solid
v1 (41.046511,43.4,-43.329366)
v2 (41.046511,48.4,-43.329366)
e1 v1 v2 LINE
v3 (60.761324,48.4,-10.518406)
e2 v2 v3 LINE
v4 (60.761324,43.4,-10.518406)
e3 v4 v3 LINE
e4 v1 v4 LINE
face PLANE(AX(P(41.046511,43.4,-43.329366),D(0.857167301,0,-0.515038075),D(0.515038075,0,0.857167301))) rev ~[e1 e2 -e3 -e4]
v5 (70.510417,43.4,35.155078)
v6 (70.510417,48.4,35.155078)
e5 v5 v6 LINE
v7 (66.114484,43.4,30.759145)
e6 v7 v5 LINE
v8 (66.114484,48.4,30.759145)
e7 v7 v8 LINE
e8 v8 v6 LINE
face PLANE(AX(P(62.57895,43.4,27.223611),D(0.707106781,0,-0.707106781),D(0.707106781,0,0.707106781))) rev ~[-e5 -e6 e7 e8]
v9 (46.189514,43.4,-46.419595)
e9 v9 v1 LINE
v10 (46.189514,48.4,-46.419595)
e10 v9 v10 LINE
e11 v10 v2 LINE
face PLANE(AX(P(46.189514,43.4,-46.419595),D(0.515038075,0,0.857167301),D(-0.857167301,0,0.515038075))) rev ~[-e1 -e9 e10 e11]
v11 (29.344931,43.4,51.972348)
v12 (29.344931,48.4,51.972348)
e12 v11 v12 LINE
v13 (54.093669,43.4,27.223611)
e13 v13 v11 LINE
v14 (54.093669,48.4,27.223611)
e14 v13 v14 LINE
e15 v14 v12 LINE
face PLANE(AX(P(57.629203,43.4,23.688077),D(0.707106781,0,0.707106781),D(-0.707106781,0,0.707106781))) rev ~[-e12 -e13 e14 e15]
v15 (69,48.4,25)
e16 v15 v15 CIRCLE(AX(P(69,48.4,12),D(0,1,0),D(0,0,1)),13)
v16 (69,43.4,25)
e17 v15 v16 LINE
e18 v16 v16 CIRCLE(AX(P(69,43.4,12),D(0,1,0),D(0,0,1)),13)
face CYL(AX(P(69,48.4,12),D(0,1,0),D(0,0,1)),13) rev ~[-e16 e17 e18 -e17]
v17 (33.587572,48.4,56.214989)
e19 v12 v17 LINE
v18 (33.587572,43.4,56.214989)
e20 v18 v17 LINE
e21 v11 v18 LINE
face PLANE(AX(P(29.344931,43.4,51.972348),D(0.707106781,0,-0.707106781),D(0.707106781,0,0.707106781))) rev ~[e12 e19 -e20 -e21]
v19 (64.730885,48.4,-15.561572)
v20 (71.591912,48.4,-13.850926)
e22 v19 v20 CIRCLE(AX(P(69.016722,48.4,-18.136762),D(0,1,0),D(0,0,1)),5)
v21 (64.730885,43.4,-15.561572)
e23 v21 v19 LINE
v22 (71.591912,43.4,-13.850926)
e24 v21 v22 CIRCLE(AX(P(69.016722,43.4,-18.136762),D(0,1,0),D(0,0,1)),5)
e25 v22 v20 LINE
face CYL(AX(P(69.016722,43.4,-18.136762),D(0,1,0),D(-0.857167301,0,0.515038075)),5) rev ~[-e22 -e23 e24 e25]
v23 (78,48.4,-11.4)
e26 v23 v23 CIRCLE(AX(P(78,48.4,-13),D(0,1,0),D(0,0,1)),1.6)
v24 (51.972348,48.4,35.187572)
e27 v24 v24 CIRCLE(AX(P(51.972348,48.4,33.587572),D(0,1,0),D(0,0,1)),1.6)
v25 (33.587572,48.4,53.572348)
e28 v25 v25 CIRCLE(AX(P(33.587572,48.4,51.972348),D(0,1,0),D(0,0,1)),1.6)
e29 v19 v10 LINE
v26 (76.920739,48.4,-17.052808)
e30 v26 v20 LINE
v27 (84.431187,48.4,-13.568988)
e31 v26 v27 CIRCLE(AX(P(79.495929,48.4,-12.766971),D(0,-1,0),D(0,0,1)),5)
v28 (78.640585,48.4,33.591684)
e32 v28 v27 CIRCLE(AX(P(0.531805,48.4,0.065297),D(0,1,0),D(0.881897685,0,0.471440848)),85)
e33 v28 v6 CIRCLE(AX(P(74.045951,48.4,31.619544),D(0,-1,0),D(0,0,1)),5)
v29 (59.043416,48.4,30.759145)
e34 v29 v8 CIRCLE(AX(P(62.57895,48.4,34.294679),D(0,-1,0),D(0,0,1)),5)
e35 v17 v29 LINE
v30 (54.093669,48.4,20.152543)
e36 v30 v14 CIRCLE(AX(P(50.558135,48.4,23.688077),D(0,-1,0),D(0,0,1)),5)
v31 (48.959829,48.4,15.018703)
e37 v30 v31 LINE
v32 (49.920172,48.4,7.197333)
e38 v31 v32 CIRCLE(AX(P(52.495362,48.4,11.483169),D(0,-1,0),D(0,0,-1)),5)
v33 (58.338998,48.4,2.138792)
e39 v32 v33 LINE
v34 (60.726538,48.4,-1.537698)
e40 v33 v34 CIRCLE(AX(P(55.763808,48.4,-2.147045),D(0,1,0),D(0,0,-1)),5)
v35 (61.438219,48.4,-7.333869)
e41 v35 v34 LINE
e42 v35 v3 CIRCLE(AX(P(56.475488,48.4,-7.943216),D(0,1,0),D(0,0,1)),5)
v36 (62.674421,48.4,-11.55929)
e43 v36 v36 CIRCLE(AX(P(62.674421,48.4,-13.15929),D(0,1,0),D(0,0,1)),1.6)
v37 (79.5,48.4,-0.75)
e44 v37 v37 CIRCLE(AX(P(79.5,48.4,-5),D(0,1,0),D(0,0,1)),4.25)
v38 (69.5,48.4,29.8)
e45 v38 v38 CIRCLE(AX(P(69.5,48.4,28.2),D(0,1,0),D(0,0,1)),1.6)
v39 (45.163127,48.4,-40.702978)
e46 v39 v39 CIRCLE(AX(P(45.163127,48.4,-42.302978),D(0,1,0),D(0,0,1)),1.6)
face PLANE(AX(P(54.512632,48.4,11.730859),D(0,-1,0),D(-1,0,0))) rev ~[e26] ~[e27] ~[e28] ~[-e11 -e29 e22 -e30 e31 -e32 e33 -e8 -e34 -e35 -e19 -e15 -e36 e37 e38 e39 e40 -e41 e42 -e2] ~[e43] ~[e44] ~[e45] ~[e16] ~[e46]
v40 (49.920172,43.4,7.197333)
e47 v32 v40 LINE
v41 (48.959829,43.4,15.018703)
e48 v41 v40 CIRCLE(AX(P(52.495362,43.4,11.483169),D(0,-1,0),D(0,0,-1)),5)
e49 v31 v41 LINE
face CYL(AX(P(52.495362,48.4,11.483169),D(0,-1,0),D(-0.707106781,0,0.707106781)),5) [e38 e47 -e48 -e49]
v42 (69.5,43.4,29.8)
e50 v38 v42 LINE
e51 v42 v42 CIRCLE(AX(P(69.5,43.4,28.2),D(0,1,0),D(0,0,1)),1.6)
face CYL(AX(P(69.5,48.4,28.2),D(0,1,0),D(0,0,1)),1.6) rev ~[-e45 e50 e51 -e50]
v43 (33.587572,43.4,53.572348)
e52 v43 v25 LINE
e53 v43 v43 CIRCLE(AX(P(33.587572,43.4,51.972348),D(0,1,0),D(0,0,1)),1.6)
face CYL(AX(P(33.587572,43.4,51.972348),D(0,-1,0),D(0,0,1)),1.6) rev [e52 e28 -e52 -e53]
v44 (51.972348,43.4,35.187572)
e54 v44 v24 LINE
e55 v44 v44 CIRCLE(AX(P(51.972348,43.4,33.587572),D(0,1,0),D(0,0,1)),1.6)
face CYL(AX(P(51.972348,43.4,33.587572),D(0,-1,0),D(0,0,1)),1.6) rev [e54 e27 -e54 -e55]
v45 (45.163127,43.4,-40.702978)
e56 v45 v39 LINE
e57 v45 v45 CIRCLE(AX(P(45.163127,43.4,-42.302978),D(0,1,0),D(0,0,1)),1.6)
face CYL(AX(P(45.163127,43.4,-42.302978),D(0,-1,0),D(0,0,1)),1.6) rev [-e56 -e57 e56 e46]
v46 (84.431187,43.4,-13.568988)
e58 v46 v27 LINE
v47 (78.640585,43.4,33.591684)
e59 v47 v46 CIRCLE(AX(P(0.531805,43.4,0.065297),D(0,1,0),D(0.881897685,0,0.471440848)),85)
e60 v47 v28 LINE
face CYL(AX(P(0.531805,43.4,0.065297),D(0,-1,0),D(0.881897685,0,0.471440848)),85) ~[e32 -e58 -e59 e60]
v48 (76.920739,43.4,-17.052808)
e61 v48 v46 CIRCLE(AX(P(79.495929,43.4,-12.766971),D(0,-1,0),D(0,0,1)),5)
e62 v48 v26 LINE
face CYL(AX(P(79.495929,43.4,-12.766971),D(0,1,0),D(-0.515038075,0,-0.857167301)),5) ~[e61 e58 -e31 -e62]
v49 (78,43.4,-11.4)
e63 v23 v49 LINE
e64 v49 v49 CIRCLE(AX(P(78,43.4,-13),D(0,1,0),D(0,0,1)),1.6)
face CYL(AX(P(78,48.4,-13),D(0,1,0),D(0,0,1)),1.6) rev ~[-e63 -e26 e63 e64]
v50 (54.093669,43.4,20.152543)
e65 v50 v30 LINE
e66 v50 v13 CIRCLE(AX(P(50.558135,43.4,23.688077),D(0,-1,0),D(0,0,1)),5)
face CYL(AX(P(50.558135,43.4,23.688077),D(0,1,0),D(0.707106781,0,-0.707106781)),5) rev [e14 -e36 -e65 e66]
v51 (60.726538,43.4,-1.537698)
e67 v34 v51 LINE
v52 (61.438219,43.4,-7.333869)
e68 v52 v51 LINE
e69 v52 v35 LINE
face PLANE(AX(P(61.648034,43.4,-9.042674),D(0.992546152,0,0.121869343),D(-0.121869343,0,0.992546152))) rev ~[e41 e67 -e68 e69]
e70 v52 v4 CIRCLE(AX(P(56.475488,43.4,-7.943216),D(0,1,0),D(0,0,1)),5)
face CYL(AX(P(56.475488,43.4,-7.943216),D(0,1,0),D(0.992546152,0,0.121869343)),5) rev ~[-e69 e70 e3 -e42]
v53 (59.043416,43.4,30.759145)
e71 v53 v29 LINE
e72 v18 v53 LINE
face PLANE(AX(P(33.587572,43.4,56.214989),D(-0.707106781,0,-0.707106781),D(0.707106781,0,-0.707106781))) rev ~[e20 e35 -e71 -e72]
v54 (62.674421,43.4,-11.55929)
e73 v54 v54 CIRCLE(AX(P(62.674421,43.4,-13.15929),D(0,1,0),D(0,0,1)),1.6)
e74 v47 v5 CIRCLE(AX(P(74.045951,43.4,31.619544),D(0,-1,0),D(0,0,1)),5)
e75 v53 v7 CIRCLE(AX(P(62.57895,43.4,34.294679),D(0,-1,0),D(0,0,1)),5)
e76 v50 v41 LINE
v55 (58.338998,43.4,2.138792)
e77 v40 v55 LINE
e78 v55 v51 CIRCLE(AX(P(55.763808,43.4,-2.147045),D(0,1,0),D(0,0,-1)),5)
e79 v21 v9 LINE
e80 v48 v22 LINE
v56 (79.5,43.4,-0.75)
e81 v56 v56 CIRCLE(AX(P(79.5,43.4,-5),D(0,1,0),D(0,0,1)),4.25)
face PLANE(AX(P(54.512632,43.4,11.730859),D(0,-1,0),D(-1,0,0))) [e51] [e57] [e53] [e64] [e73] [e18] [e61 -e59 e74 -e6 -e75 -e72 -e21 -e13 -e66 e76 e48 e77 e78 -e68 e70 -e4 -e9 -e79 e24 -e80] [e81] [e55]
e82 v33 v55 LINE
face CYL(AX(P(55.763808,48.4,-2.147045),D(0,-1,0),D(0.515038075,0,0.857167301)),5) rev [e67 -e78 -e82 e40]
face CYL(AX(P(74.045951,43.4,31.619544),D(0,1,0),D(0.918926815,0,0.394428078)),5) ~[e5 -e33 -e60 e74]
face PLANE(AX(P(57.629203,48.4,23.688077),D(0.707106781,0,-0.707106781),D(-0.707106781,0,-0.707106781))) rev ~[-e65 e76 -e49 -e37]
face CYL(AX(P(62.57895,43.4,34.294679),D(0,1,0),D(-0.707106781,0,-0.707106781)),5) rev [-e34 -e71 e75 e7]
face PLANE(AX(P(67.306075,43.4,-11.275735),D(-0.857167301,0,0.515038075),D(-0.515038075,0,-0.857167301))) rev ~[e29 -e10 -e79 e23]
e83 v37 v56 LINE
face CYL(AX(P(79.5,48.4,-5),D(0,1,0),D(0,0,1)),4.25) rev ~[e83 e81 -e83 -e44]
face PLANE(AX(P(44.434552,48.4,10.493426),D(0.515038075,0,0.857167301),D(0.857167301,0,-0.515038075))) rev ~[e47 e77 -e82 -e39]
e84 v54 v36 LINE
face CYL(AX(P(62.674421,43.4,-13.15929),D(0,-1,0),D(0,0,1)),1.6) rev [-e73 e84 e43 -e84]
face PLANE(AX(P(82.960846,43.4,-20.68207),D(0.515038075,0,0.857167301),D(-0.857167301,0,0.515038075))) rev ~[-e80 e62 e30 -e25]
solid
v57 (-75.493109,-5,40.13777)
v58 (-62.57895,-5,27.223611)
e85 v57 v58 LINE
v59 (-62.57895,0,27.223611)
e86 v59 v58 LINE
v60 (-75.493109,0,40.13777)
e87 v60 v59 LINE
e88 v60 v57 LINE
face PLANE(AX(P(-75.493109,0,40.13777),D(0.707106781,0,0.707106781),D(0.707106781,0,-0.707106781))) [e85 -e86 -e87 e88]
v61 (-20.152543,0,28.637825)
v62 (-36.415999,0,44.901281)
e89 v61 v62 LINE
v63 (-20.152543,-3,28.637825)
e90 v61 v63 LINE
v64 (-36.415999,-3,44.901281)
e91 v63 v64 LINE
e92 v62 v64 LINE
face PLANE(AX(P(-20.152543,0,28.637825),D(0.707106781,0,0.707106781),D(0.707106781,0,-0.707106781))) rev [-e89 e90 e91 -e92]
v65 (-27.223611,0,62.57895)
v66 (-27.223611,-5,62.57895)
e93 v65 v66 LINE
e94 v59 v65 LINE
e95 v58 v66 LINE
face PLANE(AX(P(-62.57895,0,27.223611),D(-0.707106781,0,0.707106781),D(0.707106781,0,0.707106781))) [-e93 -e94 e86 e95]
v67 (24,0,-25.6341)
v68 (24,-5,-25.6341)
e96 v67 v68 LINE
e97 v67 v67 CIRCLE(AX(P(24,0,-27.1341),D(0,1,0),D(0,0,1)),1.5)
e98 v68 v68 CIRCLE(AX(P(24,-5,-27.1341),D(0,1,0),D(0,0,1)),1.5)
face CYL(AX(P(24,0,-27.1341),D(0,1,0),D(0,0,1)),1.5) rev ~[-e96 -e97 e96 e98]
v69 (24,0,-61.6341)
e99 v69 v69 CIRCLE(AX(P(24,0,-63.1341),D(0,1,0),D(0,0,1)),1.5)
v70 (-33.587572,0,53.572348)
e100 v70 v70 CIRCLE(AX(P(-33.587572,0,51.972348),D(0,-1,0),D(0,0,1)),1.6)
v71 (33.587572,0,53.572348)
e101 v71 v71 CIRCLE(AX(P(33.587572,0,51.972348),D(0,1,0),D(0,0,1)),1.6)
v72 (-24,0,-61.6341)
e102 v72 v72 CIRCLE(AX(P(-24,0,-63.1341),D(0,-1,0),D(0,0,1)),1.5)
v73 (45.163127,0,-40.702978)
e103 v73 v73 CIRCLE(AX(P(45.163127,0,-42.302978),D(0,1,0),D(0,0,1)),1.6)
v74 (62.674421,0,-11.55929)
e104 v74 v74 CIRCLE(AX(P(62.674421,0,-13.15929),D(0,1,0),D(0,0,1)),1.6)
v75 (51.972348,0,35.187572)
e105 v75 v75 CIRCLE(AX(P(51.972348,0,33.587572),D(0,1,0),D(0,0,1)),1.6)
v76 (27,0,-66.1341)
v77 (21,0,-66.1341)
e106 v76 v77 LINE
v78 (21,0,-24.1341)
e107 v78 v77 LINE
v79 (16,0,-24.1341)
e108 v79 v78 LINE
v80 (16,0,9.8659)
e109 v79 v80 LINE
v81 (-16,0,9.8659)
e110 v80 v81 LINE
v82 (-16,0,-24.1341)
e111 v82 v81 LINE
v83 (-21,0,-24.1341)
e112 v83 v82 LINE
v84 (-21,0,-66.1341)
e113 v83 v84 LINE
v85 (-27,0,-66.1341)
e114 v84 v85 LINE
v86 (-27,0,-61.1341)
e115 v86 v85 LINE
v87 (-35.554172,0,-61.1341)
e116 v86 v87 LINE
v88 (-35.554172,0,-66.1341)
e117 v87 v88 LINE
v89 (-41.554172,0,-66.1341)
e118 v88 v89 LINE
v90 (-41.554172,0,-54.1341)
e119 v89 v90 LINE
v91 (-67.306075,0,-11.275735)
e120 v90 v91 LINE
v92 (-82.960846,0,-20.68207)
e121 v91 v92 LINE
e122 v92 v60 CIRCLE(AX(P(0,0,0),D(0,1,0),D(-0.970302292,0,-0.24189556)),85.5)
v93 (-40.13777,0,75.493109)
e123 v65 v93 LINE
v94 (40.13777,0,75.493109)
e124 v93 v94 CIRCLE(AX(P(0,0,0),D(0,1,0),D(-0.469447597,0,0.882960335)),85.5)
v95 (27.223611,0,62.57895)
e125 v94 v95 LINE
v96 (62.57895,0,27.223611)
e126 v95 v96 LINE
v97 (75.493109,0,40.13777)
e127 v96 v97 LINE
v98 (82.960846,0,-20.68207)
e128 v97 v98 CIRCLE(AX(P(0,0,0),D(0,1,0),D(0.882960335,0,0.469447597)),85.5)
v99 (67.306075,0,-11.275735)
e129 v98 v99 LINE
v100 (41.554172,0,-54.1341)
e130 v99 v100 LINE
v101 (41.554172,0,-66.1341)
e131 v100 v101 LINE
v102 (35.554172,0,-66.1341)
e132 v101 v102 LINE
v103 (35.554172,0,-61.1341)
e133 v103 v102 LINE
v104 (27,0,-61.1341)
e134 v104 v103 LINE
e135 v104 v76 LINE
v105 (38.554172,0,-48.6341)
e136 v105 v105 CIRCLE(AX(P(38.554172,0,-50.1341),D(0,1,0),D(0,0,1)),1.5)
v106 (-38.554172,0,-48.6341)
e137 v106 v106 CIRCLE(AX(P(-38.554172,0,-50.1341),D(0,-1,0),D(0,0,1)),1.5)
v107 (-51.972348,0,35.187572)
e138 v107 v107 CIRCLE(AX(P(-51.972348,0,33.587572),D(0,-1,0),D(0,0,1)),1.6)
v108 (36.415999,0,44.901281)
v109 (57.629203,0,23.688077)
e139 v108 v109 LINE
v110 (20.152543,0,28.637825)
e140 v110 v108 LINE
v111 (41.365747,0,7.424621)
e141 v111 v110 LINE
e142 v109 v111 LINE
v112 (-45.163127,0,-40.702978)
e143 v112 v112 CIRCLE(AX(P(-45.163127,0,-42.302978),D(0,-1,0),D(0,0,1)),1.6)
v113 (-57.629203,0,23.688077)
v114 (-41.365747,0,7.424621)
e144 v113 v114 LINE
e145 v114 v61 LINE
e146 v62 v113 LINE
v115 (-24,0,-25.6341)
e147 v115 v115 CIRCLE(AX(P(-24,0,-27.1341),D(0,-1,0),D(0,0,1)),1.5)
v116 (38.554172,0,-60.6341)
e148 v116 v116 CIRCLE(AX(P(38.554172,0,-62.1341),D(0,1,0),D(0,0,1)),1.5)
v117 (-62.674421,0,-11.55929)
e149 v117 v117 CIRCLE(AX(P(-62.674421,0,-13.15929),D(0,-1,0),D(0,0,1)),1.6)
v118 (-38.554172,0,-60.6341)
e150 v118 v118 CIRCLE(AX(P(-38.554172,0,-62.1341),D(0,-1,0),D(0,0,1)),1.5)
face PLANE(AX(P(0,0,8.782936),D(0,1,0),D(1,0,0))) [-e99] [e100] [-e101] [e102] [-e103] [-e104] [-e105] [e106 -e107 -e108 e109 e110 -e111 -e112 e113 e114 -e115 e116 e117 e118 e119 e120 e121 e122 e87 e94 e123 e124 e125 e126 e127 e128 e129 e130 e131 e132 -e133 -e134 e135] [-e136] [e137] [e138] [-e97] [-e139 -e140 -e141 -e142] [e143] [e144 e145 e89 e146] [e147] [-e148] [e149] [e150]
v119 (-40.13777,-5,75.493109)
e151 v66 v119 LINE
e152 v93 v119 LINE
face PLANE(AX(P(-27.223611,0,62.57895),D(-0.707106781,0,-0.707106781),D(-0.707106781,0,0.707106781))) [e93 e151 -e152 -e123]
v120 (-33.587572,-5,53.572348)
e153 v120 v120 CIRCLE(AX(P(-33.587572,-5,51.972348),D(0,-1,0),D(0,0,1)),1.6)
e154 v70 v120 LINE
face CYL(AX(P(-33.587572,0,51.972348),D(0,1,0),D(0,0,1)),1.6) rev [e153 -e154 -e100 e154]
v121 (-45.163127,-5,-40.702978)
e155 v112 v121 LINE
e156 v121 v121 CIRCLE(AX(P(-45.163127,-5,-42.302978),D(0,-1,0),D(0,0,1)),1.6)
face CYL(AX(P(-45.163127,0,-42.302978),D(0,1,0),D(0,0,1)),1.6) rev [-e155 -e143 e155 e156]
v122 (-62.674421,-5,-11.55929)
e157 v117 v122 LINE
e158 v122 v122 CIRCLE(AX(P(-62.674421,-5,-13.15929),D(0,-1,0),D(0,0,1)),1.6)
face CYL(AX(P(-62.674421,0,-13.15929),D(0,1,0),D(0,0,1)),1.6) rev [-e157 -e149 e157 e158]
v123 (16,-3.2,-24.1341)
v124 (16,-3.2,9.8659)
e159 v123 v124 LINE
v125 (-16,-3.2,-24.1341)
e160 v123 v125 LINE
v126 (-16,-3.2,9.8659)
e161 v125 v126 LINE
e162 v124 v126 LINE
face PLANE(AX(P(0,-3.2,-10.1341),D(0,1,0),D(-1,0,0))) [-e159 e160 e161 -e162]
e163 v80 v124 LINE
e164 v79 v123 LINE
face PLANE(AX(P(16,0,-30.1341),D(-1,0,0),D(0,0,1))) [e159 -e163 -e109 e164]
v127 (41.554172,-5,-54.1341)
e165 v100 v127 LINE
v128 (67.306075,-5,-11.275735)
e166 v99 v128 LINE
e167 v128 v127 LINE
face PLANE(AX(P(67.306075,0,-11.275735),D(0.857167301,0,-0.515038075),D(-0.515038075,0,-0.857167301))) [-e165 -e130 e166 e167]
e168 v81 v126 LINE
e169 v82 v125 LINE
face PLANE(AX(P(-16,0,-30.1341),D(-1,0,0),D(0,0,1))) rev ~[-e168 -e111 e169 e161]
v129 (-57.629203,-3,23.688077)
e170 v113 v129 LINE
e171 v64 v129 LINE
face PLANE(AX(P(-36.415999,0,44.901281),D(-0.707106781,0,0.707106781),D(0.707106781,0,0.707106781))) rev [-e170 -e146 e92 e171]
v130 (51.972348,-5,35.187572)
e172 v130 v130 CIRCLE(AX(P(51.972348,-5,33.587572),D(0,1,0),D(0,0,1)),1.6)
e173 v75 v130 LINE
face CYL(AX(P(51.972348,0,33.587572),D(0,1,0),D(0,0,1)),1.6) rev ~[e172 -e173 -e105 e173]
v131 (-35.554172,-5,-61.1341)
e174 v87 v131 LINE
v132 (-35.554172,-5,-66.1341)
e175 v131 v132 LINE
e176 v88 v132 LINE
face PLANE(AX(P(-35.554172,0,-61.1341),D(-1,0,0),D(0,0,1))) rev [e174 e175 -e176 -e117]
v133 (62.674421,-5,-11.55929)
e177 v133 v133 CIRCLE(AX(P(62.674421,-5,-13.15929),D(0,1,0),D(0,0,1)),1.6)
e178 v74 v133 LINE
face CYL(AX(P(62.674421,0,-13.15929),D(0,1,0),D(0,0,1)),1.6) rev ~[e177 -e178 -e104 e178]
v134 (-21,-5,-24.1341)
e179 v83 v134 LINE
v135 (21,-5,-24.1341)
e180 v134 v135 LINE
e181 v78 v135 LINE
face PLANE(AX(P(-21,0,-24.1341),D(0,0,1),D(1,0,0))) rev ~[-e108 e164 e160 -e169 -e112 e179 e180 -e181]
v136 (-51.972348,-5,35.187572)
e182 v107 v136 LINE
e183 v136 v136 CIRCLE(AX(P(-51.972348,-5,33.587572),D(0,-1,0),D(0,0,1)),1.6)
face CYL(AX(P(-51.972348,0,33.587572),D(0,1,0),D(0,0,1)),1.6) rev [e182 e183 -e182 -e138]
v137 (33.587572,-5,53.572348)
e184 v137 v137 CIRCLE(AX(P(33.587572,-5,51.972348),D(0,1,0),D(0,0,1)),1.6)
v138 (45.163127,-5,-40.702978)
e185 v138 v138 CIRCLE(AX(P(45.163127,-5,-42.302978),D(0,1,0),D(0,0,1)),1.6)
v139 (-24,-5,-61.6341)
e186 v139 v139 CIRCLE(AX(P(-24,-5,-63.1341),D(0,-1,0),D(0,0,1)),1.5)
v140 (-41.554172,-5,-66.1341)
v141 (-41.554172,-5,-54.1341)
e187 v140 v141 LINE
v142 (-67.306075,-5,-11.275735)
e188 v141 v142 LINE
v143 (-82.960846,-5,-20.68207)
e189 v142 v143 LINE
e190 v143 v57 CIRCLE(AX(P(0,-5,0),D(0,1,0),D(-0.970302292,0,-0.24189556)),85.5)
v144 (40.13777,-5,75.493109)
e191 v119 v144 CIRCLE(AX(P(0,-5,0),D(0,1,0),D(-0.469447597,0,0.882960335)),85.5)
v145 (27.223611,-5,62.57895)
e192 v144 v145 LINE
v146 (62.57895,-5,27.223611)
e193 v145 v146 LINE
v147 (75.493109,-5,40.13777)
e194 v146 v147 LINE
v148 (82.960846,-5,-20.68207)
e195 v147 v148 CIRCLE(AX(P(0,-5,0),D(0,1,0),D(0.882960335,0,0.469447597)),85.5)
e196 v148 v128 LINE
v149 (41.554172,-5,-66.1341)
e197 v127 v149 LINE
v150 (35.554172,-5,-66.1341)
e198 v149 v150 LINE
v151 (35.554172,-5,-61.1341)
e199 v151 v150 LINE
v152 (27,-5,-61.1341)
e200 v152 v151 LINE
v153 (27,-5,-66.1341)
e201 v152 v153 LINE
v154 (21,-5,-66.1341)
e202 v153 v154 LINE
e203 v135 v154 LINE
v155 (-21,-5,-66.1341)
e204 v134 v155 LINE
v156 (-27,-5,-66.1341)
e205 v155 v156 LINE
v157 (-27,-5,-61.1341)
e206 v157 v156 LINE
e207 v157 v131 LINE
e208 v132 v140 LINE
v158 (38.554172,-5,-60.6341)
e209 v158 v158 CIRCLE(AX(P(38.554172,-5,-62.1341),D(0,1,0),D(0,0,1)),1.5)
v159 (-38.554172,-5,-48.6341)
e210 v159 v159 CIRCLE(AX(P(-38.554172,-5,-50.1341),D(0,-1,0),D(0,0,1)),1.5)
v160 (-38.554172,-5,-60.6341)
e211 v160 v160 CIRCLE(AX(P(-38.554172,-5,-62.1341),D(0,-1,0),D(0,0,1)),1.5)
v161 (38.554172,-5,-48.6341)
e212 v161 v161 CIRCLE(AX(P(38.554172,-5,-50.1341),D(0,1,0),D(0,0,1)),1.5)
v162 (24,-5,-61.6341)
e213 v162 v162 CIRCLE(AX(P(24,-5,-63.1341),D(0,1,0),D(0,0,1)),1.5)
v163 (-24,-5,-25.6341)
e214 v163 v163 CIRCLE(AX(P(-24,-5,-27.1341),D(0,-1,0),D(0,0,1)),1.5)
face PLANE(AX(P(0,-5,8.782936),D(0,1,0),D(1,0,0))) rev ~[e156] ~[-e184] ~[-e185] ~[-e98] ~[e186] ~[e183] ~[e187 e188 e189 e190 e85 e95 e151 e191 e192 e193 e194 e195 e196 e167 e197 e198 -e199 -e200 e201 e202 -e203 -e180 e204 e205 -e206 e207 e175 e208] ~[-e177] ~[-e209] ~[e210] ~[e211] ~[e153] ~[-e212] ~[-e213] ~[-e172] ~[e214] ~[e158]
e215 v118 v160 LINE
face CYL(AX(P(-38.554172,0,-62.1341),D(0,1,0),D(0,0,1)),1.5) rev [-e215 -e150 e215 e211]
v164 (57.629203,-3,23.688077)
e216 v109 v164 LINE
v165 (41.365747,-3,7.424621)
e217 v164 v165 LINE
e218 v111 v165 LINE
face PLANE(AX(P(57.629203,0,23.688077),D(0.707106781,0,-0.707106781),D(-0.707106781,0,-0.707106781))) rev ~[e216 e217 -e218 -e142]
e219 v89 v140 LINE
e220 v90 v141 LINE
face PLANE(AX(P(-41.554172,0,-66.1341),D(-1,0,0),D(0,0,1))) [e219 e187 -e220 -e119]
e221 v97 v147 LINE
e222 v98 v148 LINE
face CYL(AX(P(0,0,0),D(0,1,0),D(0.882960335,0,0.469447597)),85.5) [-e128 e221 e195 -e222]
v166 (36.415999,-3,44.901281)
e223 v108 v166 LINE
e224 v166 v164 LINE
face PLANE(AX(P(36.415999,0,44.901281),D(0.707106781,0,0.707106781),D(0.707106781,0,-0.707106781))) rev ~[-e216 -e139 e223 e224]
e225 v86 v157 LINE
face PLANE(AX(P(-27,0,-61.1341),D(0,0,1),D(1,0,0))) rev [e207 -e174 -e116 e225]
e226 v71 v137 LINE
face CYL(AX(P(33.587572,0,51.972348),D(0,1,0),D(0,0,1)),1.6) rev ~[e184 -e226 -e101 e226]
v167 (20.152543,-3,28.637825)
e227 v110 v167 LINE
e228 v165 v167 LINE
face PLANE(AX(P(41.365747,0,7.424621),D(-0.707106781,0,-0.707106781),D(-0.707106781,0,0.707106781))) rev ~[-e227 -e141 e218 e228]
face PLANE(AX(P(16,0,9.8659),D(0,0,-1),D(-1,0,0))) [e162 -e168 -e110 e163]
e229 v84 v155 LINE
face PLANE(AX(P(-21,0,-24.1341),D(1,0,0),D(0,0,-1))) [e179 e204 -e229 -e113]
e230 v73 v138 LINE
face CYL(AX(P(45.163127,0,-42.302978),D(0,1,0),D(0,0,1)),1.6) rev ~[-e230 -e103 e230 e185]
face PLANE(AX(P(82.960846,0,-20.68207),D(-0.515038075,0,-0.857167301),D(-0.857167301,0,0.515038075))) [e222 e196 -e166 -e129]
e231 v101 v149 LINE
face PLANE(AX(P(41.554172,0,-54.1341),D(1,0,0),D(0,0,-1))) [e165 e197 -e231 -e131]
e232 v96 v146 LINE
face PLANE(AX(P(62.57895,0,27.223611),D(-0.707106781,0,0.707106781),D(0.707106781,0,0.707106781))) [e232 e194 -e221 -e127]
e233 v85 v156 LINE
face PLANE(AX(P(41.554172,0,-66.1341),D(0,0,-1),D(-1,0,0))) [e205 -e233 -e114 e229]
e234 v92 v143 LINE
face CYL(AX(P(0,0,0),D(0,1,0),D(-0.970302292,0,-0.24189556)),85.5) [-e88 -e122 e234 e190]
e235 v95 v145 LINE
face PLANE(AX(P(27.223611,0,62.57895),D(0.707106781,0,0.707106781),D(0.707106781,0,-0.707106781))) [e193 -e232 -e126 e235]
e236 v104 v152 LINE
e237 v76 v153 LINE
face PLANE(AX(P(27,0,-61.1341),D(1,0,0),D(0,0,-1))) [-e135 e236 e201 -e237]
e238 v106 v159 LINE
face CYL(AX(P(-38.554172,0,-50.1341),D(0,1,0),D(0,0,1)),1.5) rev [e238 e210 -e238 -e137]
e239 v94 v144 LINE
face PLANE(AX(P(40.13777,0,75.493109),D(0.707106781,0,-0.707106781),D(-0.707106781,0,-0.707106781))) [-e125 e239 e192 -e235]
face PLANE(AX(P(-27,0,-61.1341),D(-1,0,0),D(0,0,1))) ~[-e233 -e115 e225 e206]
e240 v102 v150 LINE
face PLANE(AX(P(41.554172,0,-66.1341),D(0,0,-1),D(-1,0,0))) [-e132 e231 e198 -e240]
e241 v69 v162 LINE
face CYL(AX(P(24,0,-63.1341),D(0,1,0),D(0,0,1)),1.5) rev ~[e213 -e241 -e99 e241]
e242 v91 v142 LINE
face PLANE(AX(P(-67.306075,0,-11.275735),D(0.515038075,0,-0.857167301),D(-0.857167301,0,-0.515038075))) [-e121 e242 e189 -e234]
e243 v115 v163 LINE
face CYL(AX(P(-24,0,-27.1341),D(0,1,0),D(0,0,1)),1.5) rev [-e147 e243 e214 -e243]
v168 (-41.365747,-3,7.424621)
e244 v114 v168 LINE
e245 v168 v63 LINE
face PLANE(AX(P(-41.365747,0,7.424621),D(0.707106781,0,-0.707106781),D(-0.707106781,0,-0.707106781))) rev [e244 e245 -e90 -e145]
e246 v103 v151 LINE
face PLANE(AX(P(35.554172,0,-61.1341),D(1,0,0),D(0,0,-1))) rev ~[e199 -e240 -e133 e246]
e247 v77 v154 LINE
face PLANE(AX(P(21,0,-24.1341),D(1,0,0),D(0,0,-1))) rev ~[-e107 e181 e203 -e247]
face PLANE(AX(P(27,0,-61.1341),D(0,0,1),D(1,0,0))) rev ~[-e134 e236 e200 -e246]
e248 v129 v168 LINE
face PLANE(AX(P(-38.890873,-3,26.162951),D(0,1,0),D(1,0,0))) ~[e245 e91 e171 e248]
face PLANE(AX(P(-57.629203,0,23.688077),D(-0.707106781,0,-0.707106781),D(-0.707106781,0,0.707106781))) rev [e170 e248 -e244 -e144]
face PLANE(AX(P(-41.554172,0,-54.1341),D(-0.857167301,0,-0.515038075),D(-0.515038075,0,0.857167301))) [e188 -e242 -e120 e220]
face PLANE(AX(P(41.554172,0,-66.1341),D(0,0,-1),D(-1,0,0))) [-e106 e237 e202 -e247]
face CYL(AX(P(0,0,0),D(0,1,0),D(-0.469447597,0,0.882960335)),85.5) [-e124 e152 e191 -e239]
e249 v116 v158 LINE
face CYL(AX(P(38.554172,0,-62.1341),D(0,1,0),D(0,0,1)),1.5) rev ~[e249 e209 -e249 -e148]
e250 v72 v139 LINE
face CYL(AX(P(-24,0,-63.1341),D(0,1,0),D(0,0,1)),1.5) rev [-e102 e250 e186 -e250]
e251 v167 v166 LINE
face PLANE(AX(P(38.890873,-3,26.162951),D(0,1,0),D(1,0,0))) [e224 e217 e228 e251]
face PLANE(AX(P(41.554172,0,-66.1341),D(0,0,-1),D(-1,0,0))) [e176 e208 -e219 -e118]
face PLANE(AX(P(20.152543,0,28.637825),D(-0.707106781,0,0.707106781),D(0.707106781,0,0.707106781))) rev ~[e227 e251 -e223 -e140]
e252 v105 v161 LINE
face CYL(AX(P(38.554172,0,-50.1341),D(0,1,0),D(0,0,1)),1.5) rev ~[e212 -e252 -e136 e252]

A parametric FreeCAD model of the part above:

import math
import FreeCAD as App
import Part
import Sketcher

V = App.Vector
Q = App.Units.Quantity


def edges_at(feature, points):
    """Names of the edges that pass closest to the given points."""
    edges = feature.Shape.Edges
    near = lambda p: min(range(len(edges)), key=lambda i: edges[i].distToShape(Part.Vertex(*p))[0])
    return sorted({f"Edge{near(p) + 1}" for p in points})


def add_polygon(sketch, points):
    """Adds a closed chain of lines whose ends are joined by coincident constraints."""
    first, n = sketch.GeometryCount, len(points)
    for a, b in zip(points, points[1:] + points[:1]):
        sketch.addGeometry(Part.LineSegment(App.Vector(*a, 0), App.Vector(*b, 0)), False)
    for i in range(n):
        sketch.addConstraint(Sketcher.Constraint("Coincident", first + i, 2, first + (i + 1) % n, 1))

doc = App.newDocument("Part")
body = doc.addObject("PartDesign::Body", "Body")

sketch1 = body.newObject("Sketcher::SketchObject", "Sketch")
sketch1.AttachmentSupport = (doc.getObject("XZ_Plane"), [""])
sketch1.MapMode = "FlatFace"
sketch1.addGeometry(Part.LineSegment(V(83, -21, 0), V(67, -11, 0)), False)
sketch1.addGeometry(Part.LineSegment(V(67, -11, 0), V(42, -54, 0)), False)
sketch1.addGeometry(Part.LineSegment(V(42, -54, 0), V(42, -66, 0)), False)
sketch1.addGeometry(Part.LineSegment(V(42, -66, 0), V(-42, -66, 0)), False)
sketch1.addGeometry(Part.LineSegment(V(-42, -66, 0), V(-42, -54, 0)), False)
sketch1.addGeometry(Part.LineSegment(V(-42, -54, 0), V(-67, -11, 0)), False)
sketch1.addGeometry(Part.LineSegment(V(-67, -11, 0), V(-83, -21, 0)), False)
sketch1.addGeometry(Part.ArcOfCircle(Part.Circle(V(0, 0, 0), V(0, 0, 1), 86), math.radians(152), math.radians(194)), False)
sketch1.addGeometry(Part.LineSegment(V(-75, 40, 0), V(-63, 27, 0)), False)
sketch1.addGeometry(Part.LineSegment(V(-63, 27, 0), V(-27, 63, 0)), False)
sketch1.addGeometry(Part.LineSegment(V(-27, 63, 0), V(-40, 75, 0)), False)
sketch1.addGeometry(Part.ArcOfCircle(Part.Circle(V(0, 0, 0), V(0, 0, 1), 86), math.radians(62), math.radians(118)), False)
sketch1.addGeometry(Part.LineSegment(V(40, 75, 0), V(27, 63, 0)), False)
sketch1.addGeometry(Part.LineSegment(V(27, 63, 0), V(63, 27, 0)), False)
sketch1.addGeometry(Part.LineSegment(V(63, 27, 0), V(75, 40, 0)), False)
sketch1.addGeometry(Part.ArcOfCircle(Part.Circle(V(0, 0, 0), V(0, 0, 1), 86), math.radians(-14), math.radians(28)), False)
sketch1.addConstraint(Sketcher.Constraint("Coincident", 0, 2, 1, 1))
sketch1.addConstraint(Sketcher.Constraint("Coincident", 1, 2, 2, 1))
sketch1.addConstraint(Sketcher.Constraint("Coincident", 2, 2, 3, 1))
sketch1.addConstraint(Sketcher.Constraint("Coincident", 3, 2, 4, 1))
sketch1.addConstraint(Sketcher.Constraint("Coincident", 4, 2, 5, 1))
sketch1.addConstraint(Sketcher.Constraint("Coincident", 5, 2, 6, 1))
sketch1.addConstraint(Sketcher.Constraint("Coincident", 6, 2, 7, 2))
sketch1.addConstraint(Sketcher.Constraint("Coincident", 7, 1, 8, 1))
sketch1.addConstraint(Sketcher.Constraint("Coincident", 8, 2, 9, 1))
sketch1.addConstraint(Sketcher.Constraint("Coincident", 9, 2, 10, 1))
sketch1.addConstraint(Sketcher.Constraint("Coincident", 10, 2, 11, 2))
sketch1.addConstraint(Sketcher.Constraint("Coincident", 11, 1, 12, 1))
sketch1.addConstraint(Sketcher.Constraint("Coincident", 12, 2, 13, 1))
sketch1.addConstraint(Sketcher.Constraint("Coincident", 13, 2, 14, 1))
sketch1.addConstraint(Sketcher.Constraint("Coincident", 14, 2, 15, 2))
sketch1.addConstraint(Sketcher.Constraint("Coincident", 15, 1, 0, 1))
sketch1.addConstraint(Sketcher.Constraint("Vertical", 2))
sketch1.addConstraint(Sketcher.Constraint("Horizontal", 3))
sketch1.addConstraint(Sketcher.Constraint("Vertical", 4))
sketch1.addConstraint(Sketcher.Constraint("Coincident", 7, 3, -1, 1))
sketch1.addConstraint(Sketcher.Constraint("Coincident", 11, 3, -1, 1))
sketch1.addConstraint(Sketcher.Constraint("Coincident", 15, 3, -1, 1))
sketch1.addConstraint(Sketcher.Constraint("Equal", 7, 11))
sketch1.addConstraint(Sketcher.Constraint("Equal", 11, 15))
sketch1.addConstraint(Sketcher.Constraint("Symmetric", 1, 2, 4, 2, -2))
sketch1.addConstraint(Sketcher.Constraint("Symmetric", 0, 2, 5, 2, -2))
sketch1.addConstraint(Sketcher.Constraint("Symmetric", 9, 2, 12, 2, -2))
sketch1.addConstraint(Sketcher.Constraint("Symmetric", 8, 2, 13, 2, -2))
sketch1.addConstraint(Sketcher.Constraint("Perpendicular", 0, 1))
sketch1.addConstraint(Sketcher.Constraint("Perpendicular", 5, 6))
sketch1.addConstraint(Sketcher.Constraint("Perpendicular", 8, 9))
sketch1.addConstraint(Sketcher.Constraint("Perpendicular", 9, 10))
sketch1.addConstraint(Sketcher.Constraint("Perpendicular", 10, 12))
sketch1.addConstraint(Sketcher.Constraint("Perpendicular", 12, 13))
sketch1.addConstraint(Sketcher.Constraint("Perpendicular", 13, 14))
sketch1.addConstraint(Sketcher.Constraint("Equal", 6, 8))
sketch1.addConstraint(Sketcher.Constraint("Equal", 5, 9))
sketch1.addConstraint(Sketcher.Constraint("Equal", 8, 10))
sketch1.addConstraint(Sketcher.Constraint("Radius", 7, Q("85.5 mm")))
sketch1.addConstraint(Sketcher.Constraint("DistanceY", 2, 2, 2, 1, Q("12 mm")))
sketch1.addConstraint(Sketcher.Constraint("Angle", 0, Q("149 deg")))
sketch1.addConstraint(Sketcher.Constraint("Distance", 1, Q("50 mm")))
sketch1.addConstraint(Sketcher.Constraint("DistanceY", 1, 2, -1, 1, Q("54.1341 mm")))
sketch1.addConstraint(Sketcher.Constraint("Distance", 0, Q("18.263378 mm")))
pad1 = body.newObject("PartDesign::Pad", "Pad")
pad1.Profile = sketch1
pad1.Length = 5

sketch2 = body.newObject("Sketcher::SketchObject", "Sketch001")
sketch2.AttachmentSupport = (doc.getObject("XZ_Plane"), [""])
sketch2.MapMode = "FlatFace"
add_polygon(sketch2, [(-21, -71), (-21, -24), (21, -24), (21, -71)])
sketch2.addConstraint(Sketcher.Constraint("Vertical", 0))
sketch2.addConstraint(Sketcher.Constraint("Horizontal", 1))
sketch2.addConstraint(Sketcher.Constraint("Vertical", 2))
sketch2.addConstraint(Sketcher.Constraint("Horizontal", 3))
sketch2.addConstraint(Sketcher.Constraint("DistanceX", 1, 1, 1, 2, Q("42 mm")))
sketch2.addConstraint(Sketcher.Constraint("DistanceY", 0, 1, 0, 2, Q("47 mm")))
sketch2.addConstraint(Sketcher.Constraint("DistanceX", 0, 2, -1, 1, Q("21 mm")))
sketch2.addConstraint(Sketcher.Constraint("DistanceY", 0, 2, -1, 1, Q("24.1341 mm")))
pocket1 = body.newObject("PartDesign::Pocket", "Pocket")
pocket1.Profile = sketch2
pocket1.Length = 5
pocket1.Reversed = True

sketch3 = body.newObject("Sketcher::SketchObject", "Sketch002")
sketch3.AttachmentSupport = (doc.getObject("XZ_Plane"), [""])
sketch3.MapMode = "FlatFace"
add_polygon(sketch3, [(16, 10), (16, -30), (-16, -30), (-16, 10)])
sketch3.addConstraint(Sketcher.Constraint("Vertical", 0))
sketch3.addConstraint(Sketcher.Constraint("Horizontal", 1))
sketch3.addConstraint(Sketcher.Constraint("Vertical", 2))
sketch3.addConstraint(Sketcher.Constraint("Horizontal", 3))
sketch3.addConstraint(Sketcher.Constraint("DistanceX", 1, 2, 1, 1, Q("32 mm")))
sketch3.addConstraint(Sketcher.Constraint("DistanceY", 0, 2, 0, 1, Q("40 mm")))
sketch3.addConstraint(Sketcher.Constraint("DistanceX", -1, 1, 0, 2, Q("16 mm")))
sketch3.addConstraint(Sketcher.Constraint("DistanceY", 0, 2, -1, 1, Q("30.1341 mm")))
pocket2 = body.newObject("PartDesign::Pocket", "Pocket001")
pocket2.Profile = sketch3
pocket2.Length = 3.2
pocket2.Reversed = True

sketch4 = body.newObject("Sketcher::SketchObject", "Sketch003")
sketch4.AttachmentSupport = (doc.getObject("XZ_Plane"), [""])
sketch4.MapMode = "FlatFace"
add_polygon(sketch4, [(36, 45), (58, 24), (41, 7), (20, 29)])
sketch4.addConstraint(Sketcher.Constraint("Perpendicular", 0, 1))
sketch4.addConstraint(Sketcher.Constraint("Perpendicular", 1, 2))
sketch4.addConstraint(Sketcher.Constraint("Perpendicular", 2, 3))
sketch4.addConstraint(Sketcher.Constraint("Angle", 0, Q("-45 deg")))
sketch4.addConstraint(Sketcher.Constraint("Distance", 0, Q("30 mm")))
sketch4.addConstraint(Sketcher.Constraint("Distance", 1, Q("23 mm")))
sketch4.addConstraint(Sketcher.Constraint("DistanceX", -1, 1, 3, 2, Q("36.415999 mm")))
sketch4.addConstraint(Sketcher.Constraint("DistanceY", -1, 1, 1, 2, Q("7.424621 mm")))
pocket3 = body.newObject("PartDesign::Pocket", "Pocket002")
pocket3.Profile = sketch4
pocket3.Length = 3
pocket3.Reversed = True
doc.recompute()

mirrored = body.newObject("PartDesign::Mirrored", "Mirrored")
mirrored.Originals = [pocket3]
mirrored.MirrorPlane = (doc.getObject("YZ_Plane"), [""])
body.Tip = mirrored

sketch5 = body.newObject("Sketcher::SketchObject", "Sketch004")
sketch5.AttachmentSupport = (doc.getObject("XZ_Plane"), [""])
sketch5.MapMode = "FlatFace"
sketch5.addGeometry(Part.Circle(V(45.2, -42.3, 0), V(0, 0, 1), 1.6), False)
sketch5.addGeometry(Part.Circle(V(62.7, -13.2, 0), V(0, 0, 1), 1.6), False)
sketch5.addGeometry(Part.Circle(V(52, 33.6, 0), V(0, 0, 1), 1.6), False)
sketch5.addGeometry(Part.Circle(V(33.6, 52, 0), V(0, 0, 1), 1.6), False)
sketch5.addConstraint(Sketcher.Constraint("Equal", 0, 1))
sketch5.addConstraint(Sketcher.Constraint("Equal", 1, 2))
sketch5.addConstraint(Sketcher.Constraint("Equal", 2, 3))
sketch5.addConstraint(Sketcher.Constraint("Diameter", 0, Q("3.2 mm")))
sketch5.addConstraint(Sketcher.Constraint("DistanceY", 0, 3, -1, 1, Q("42.302978 mm")))
sketch5.addConstraint(Sketcher.Constraint("DistanceX", -1, 1, 1, 3, Q("62.674421 mm")))
sketch5.addConstraint(Sketcher.Constraint("DistanceY", 1, 3, -1, 1, Q("13.15929 mm")))
sketch5.addConstraint(Sketcher.Constraint("DistanceX", -1, 1, 2, 3, Q("51.972348 mm")))
sketch5.addConstraint(Sketcher.Constraint("DistanceY", -1, 1, 3, 3, Q("51.972348 mm")))
sketch5.addConstraint(Sketcher.Constraint("DistanceX", 0, 3, 2, 3, Q("6.809222 mm")))
sketch5.addConstraint(Sketcher.Constraint("DistanceY", 0, 3, 2, 3, Q("75.890551 mm")))
sketch5.addConstraint(Sketcher.Constraint("DistanceX", 3, 3, 1, 3, Q("29.086849 mm")))
pocket4 = body.newObject("PartDesign::Pocket", "Pocket003")
pocket4.Profile = sketch5
pocket4.Length = 5
pocket4.Reversed = True
doc.recompute()

mirrored2 = body.newObject("PartDesign::Mirrored", "Mirrored001")
mirrored2.Originals = [pocket4]
mirrored2.MirrorPlane = (doc.getObject("YZ_Plane"), [""])
body.Tip = mirrored2

sketch6 = body.newObject("Sketcher::SketchObject", "Sketch005")
sketch6.AttachmentSupport = (doc.getObject("XZ_Plane"), [""])
sketch6.MapMode = "FlatFace"
sketch6.addGeometry(Part.Circle(V(24, -63.1, 0), V(0, 0, 1), 1.5), False)
sketch6.addGeometry(Part.Circle(V(24, -27.1, 0), V(0, 0, 1), 1.5), False)
sketch6.addConstraint(Sketcher.Constraint("Equal", 0, 1))
sketch6.addConstraint(Sketcher.Constraint("Vertical", 0, 3, 1, 3))
sketch6.addConstraint(Sketcher.Constraint("Diameter", 0, Q("3 mm")))
sketch6.addConstraint(Sketcher.Constraint("DistanceX", -1, 1, 0, 3, Q("24 mm")))
sketch6.addConstraint(Sketcher.Constraint("DistanceY", 0, 3, 1, 3, Q("36 mm")))
sketch6.addConstraint(Sketcher.Constraint("DistanceY", 0, 3, -1, 1, Q("63.1341 mm")))
pocket5 = body.newObject("PartDesign::Pocket", "Pocket004")
pocket5.Profile = sketch6
pocket5.Length = 5
pocket5.Reversed = True
doc.recompute()

mirrored3 = body.newObject("PartDesign::Mirrored", "Mirrored002")
mirrored3.Originals = [pocket5]
mirrored3.MirrorPlane = (doc.getObject("YZ_Plane"), [""])
body.Tip = mirrored3

sketch7 = body.newObject("Sketcher::SketchObject", "Sketch006")
sketch7.AttachmentSupport = (doc.getObject("XZ_Plane"), [""])
sketch7.MapMode = "FlatFace"
add_polygon(sketch7, [(27, -68), (27, -61), (36, -61), (36, -68)])
sketch7.addConstraint(Sketcher.Constraint("Vertical", 0))
sketch7.addConstraint(Sketcher.Constraint("Horizontal", 1))
sketch7.addConstraint(Sketcher.Constraint("Vertical", 2))
sketch7.addConstraint(Sketcher.Constraint("Horizontal", 3))
sketch7.addConstraint(Sketcher.Constraint("DistanceY", 0, 1, 0, 2, Q("7 mm")))
sketch7.addConstraint(Sketcher.Constraint("DistanceX", -1, 1, 0, 2, Q("27 mm")))
sketch7.addConstraint(Sketcher.Constraint("DistanceX", 1, 1, 1, 2, Q("8.554172 mm")))
sketch7.addConstraint(Sketcher.Constraint("DistanceY", 0, 2, -1, 1, Q("61.1341 mm")))
pocket6 = body.newObject("PartDesign::Pocket", "Pocket005")
pocket6.Profile = sketch7
pocket6.Length = 5
pocket6.Reversed = True
doc.recompute()

mirrored4 = body.newObject("PartDesign::Mirrored", "Mirrored003")
mirrored4.Originals = [pocket6]
mirrored4.MirrorPlane = (doc.getObject("YZ_Plane"), [""])
body.Tip = mirrored4

sketch8 = body.newObject("Sketcher::SketchObject", "Sketch007")
sketch8.AttachmentSupport = (doc.getObject("XZ_Plane"), [""])
sketch8.MapMode = "FlatFace"
sketch8.addGeometry(Part.Circle(V(38.6, -62.1, 0), V(0, 0, 1), 1.5), False)
sketch8.addGeometry(Part.Circle(V(38.6, -50.1, 0), V(0, 0, 1), 1.5), False)
sketch8.addConstraint(Sketcher.Constraint("Equal", 0, 1))
sketch8.addConstraint(Sketcher.Constraint("Vertical", 0, 3, 1, 3))
sketch8.addConstraint(Sketcher.Constraint("Diameter", 0, Q("3 mm")))
sketch8.addConstraint(Sketcher.Constraint("DistanceY", 0, 3, 1, 3, Q("12 mm")))
sketch8.addConstraint(Sketcher.Constraint("DistanceY", 0, 3, -1, 1, Q("62.1341 mm")))
sketch8.addConstraint(Sketcher.Constraint("DistanceX", -1, 1, 0, 3, Q("38.554172 mm")))
pocket7 = body.newObject("PartDesign::Pocket", "Pocket006")
pocket7.Profile = sketch8
pocket7.Length = 5
pocket7.Reversed = True
doc.recompute()

mirrored5 = body.newObject("PartDesign::Mirrored", "Mirrored004")
mirrored5.Originals = [pocket7]
mirrored5.MirrorPlane = (doc.getObject("YZ_Plane"), [""])
body.Tip = mirrored5
body2 = doc.addObject("PartDesign::Body", "Body001")

sketch9 = body2.newObject("Sketcher::SketchObject", "Sketch008")
sketch9.AttachmentSupport = (doc.getObject("XZ_Plane001"), [""])
sketch9.MapMode = "FlatFace"
sketch9.AttachmentOffset = App.Placement(V(0, 0, -43.4), App.Rotation())
sketch9.addGeometry(Part.LineSegment(V(46.2, -46.4, 0), V(41, -43.3, 0)), False)
sketch9.addGeometry(Part.LineSegment(V(41, -43.3, 0), V(61.6, -9, 0)), False)
sketch9.addGeometry(Part.LineSegment(V(61.6, -9, 0), V(57.6, 23.7, 0)), False)
sketch9.addGeometry(Part.LineSegment(V(57.6, 23.7, 0), V(29.3, 52, 0)), False)
sketch9.addGeometry(Part.LineSegment(V(29.3, 52, 0), V(33.6, 56.2, 0)), False)
sketch9.addGeometry(Part.LineSegment(V(33.6, 56.2, 0), V(62.6, 27.2, 0)), False)
sketch9.addGeometry(Part.LineSegment(V(62.6, 27.2, 0), V(75.5, 40.1, 0)), False)
sketch9.addGeometry(Part.ArcOfCircle(Part.Circle(V(0.5, 0.1, 0), V(0, 0, 1), 85), math.radians(-14), math.radians(28)), False)
sketch9.addGeometry(Part.LineSegment(V(83, -20.7, 0), V(67.3, -11.3, 0)), False)
sketch9.addGeometry(Part.LineSegment(V(67.3, -11.3, 0), V(46.2, -46.4, 0)), False)
sketch9.addGeometry(Part.Circle(V(62.7, -13.2, 0), V(0, 0, 1), 1.6), False)
sketch9.addGeometry(Part.Circle(V(45.2, -42.3, 0), V(0, 0, 1), 1.6), False)
sketch9.addGeometry(Part.Circle(V(52, 33.6, 0), V(0, 0, 1), 1.6), False)
sketch9.addGeometry(Part.Circle(V(33.6, 52, 0), V(0, 0, 1), 1.6), False)
sketch9.addConstraint(Sketcher.Constraint("Coincident", 0, 2, 1, 1))
sketch9.addConstraint(Sketcher.Constraint("Coincident", 1, 2, 2, 1))
sketch9.addConstraint(Sketcher.Constraint("Coincident", 2, 2, 3, 1))
sketch9.addConstraint(Sketcher.Constraint("Coincident", 3, 2, 4, 1))
sketch9.addConstraint(Sketcher.Constraint("Coincident", 4, 2, 5, 1))
sketch9.addConstraint(Sketcher.Constraint("Coincident", 5, 2, 6, 1))
sketch9.addConstraint(Sketcher.Constraint("Coincident", 6, 2, 7, 2))
sketch9.addConstraint(Sketcher.Constraint("Coincident", 7, 1, 8, 1))
sketch9.addConstraint(Sketcher.Constraint("Coincident", 8, 2, 9, 1))
sketch9.addConstraint(Sketcher.Constraint("Coincident", 9, 2, 0, 1))
sketch9.addConstraint(Sketcher.Constraint("Equal", 10, 11))
sketch9.addConstraint(Sketcher.Constraint("Equal", 11, 12))
sketch9.addConstraint(Sketcher.Constraint("Equal", 12, 13))
sketch9.addConstraint(Sketcher.Constraint("Perpendicular", 0, 1))
sketch9.addConstraint(Sketcher.Constraint("Perpendicular", 3, 4))
sketch9.addConstraint(Sketcher.Constraint("Perpendicular", 4, 5))
sketch9.addConstraint(Sketcher.Constraint("Perpendicular", 5, 6))
sketch9.addConstraint(Sketcher.Constraint("Perpendicular", 1, 8))
sketch9.addConstraint(Sketcher.Constraint("Perpendicular", 8, 9))
sketch9.addConstraint(Sketcher.Constraint("Horizontal", 13, 3, 3, 2))
sketch9.addConstraint(Sketcher.Constraint("Vertical", 13, 3, 4, 2))
sketch9.addConstraint(Sketcher.Constraint("Equal", 1, 3))
sketch9.addConstraint(Sketcher.Constraint("Equal", 0, 4))
sketch9.addConstraint(Sketcher.Constraint("Equal", 6, 8))
sketch9.addConstraint(Sketcher.Constraint("Equal", 5, 9))
sketch9.addConstraint(Sketcher.Constraint("Radius", 7, Q("85 mm")))
sketch9.addConstraint(Sketcher.Constraint("Diameter", 10, Q("3.2 mm")))
sketch9.addConstraint(Sketcher.Constraint("Angle", 0, Q("149 deg")))
sketch9.addConstraint(Sketcher.Constraint("Angle", 2, Q("97 deg")))
sketch9.addConstraint(Sketcher.Constraint("Angle", 3, Q("135 deg")))
sketch9.addConstraint(Sketcher.Constraint("Distance", 0, Q("6 mm")))
sketch9.addConstraint(Sketcher.Constraint("Distance", 1, Q("40 mm")))
sketch9.addConstraint(Sketcher.Constraint("Distance", 5, Q("41 mm")))
sketch9.addConstraint(Sketcher.Constraint("DistanceX", 12, 3, 5, 2, Q("10.606602 mm")))
sketch9.addConstraint(Sketcher.Constraint("DistanceY", 10, 3, 5, 2, Q("40.382901 mm")))
sketch9.addConstraint(Sketcher.Constraint("Distance", 6, Q("18.263378 mm")))
sketch9.addConstraint(Sketcher.Constraint("DistanceX", -1, 1, 10, 3, Q("62.674421 mm")))
sketch9.addConstraint(Sketcher.Constraint("DistanceY", 10, 3, -1, 1, Q("13.15929 mm")))
sketch9.addConstraint(Sketcher.Constraint("DistanceY", 11, 3, -1, 1, Q("42.302978 mm")))
sketch9.addConstraint(Sketcher.Constraint("DistanceX", -1, 1, 12, 3, Q("51.972348 mm")))
sketch9.addConstraint(Sketcher.Constraint("DistanceX", -1, 1, 0, 2, Q("41.046511 mm")))
sketch9.addConstraint(Sketcher.Constraint("DistanceX", 7, 3, 11, 3, Q("44.631321 mm")))
sketch9.addConstraint(Sketcher.Constraint("DistanceY", 11, 3, 12, 3, Q("75.890551 mm")))
pad2 = body2.newObject("PartDesign::Pad", "Pad001")
pad2.Profile = sketch9
pad2.Length = 5
pad2.Reversed = True

sketch10 = body2.newObject("Sketcher::SketchObject", "Sketch009")
sketch10.AttachmentSupport = (doc.getObject("XZ_Plane001"), [""])
sketch10.MapMode = "FlatFace"
sketch10.AttachmentOffset = App.Placement(V(0, 0, -48.4), App.Rotation())
sketch10.addGeometry(Part.Circle(V(79.5, -5, 0), V(0, 0, 1), 4.2), False)
sketch10.addConstraint(Sketcher.Constraint("Diameter", 0, Q("8.5 mm")))
sketch10.addConstraint(Sketcher.Constraint("DistanceY", 0, 3, -1, 1, Q("5 mm")))
sketch10.addConstraint(Sketcher.Constraint("DistanceX", -1, 1, 0, 3, Q("79.5 mm")))
pocket8 = body2.newObject("PartDesign::Pocket", "Pocket007")
pocket8.Profile = sketch10
pocket8.Length = 5
pocket8.Reversed = True

sketch11 = body2.newObject("Sketcher::SketchObject", "Sketch010")
sketch11.AttachmentSupport = (doc.getObject("XZ_Plane001"), [""])
sketch11.MapMode = "FlatFace"
sketch11.AttachmentOffset = App.Placement(V(0, 0, -48.4), App.Rotation())
sketch11.addGeometry(Part.Circle(V(78, -13, 0), V(0, 0, 1), 1.6), False)
sketch11.addConstraint(Sketcher.Constraint("Diameter", 0, Q("3.2 mm")))
sketch11.addConstraint(Sketcher.Constraint("DistanceX", -1, 1, 0, 3, Q("78 mm")))
sketch11.addConstraint(Sketcher.Constraint("DistanceY", 0, 3, -1, 1, Q("13 mm")))
pocket9 = body2.newObject("PartDesign::Pocket", "Pocket008")
pocket9.Profile = sketch11
pocket9.Length = 5
pocket9.Reversed = True

sketch12 = body2.newObject("Sketcher::SketchObject", "Sketch011")
sketch12.AttachmentSupport = (doc.getObject("XZ_Plane001"), [""])
sketch12.MapMode = "FlatFace"
sketch12.AttachmentOffset = App.Placement(V(0, 0, -48.4), App.Rotation())
add_polygon(sketch12, [(44, 10), (58, 24), (60, 1)])
sketch12.addConstraint(Sketcher.Constraint("Equal", 0, 2))
sketch12.addConstraint(Sketcher.Constraint("Angle", 0, Q("45 deg")))
sketch12.addConstraint(Sketcher.Constraint("Angle", 1, Q("-83 deg")))
sketch12.addConstraint(Sketcher.Constraint("DistanceX", -1, 1, 1, 2, Q("60.42934 mm")))
sketch12.addConstraint(Sketcher.Constraint("DistanceX", -1, 1, 2, 2, Q("44.434552 mm")))
sketch12.addConstraint(Sketcher.Constraint("DistanceY", -1, 1, 0, 2, Q("23.688077 mm")))
pad3 = body2.newObject("PartDesign::Pad", "Pad002")
pad3.Profile = sketch12
pad3.Length = 5
doc.recompute()

fillet = body2.newObject("PartDesign::Fillet", "Fillet")
fillet.Base = (pad3, edges_at(pad3, [
    (67.306, 45.9, -11.276),
    (82.961, 45.9, -20.682),
    (75.493, 45.9, 40.138),
    (62.579, 45.9, 27.224),
    (57.629, 45.9, 23.688),
    (61.648, 45.9, -9.043),
    (44.435, 45.9, 10.493),
    (60.429, 45.9, 0.883),
]))
fillet.Radius = 5

sketch13 = body2.newObject("Sketcher::SketchObject", "Sketch012")
sketch13.AttachmentSupport = (doc.getObject("XZ_Plane001"), [""])
sketch13.MapMode = "FlatFace"
sketch13.AttachmentOffset = App.Placement(V(0, 0, -48.4), App.Rotation())
sketch13.addGeometry(Part.Circle(V(69.5, 28.2, 0), V(0, 0, 1), 1.6), False)
sketch13.addConstraint(Sketcher.Constraint("Diameter", 0, Q("3.2 mm")))
sketch13.addConstraint(Sketcher.Constraint("DistanceX", -1, 1, 0, 3, Q("69.5 mm")))
sketch13.addConstraint(Sketcher.Constraint("DistanceY", -1, 1, 0, 3, Q("28.2 mm")))
pocket10 = body2.newObject("PartDesign::Pocket", "Pocket009")
pocket10.Profile = sketch13
pocket10.Length = 5
pocket10.Reversed = True

sketch14 = body2.newObject("Sketcher::SketchObject", "Sketch013")
sketch14.AttachmentSupport = (doc.getObject("XZ_Plane001"), [""])
sketch14.MapMode = "FlatFace"
sketch14.AttachmentOffset = App.Placement(V(0, 0, -48.4), App.Rotation())
sketch14.addGeometry(Part.Circle(V(69, 12, 0), V(0, 0, 1), 13), False)
sketch14.addConstraint(Sketcher.Constraint("Diameter", 0, Q("26 mm")))
sketch14.addConstraint(Sketcher.Constraint("DistanceX", -1, 1, 0, 3, Q("69 mm")))
sketch14.addConstraint(Sketcher.Constraint("DistanceY", -1, 1, 0, 3, Q("12 mm")))
pocket11 = body2.newObject("PartDesign::Pocket", "Pocket010")
pocket11.Profile = sketch14
pocket11.Length = 5
pocket11.Reversed = True

doc.recompute()
